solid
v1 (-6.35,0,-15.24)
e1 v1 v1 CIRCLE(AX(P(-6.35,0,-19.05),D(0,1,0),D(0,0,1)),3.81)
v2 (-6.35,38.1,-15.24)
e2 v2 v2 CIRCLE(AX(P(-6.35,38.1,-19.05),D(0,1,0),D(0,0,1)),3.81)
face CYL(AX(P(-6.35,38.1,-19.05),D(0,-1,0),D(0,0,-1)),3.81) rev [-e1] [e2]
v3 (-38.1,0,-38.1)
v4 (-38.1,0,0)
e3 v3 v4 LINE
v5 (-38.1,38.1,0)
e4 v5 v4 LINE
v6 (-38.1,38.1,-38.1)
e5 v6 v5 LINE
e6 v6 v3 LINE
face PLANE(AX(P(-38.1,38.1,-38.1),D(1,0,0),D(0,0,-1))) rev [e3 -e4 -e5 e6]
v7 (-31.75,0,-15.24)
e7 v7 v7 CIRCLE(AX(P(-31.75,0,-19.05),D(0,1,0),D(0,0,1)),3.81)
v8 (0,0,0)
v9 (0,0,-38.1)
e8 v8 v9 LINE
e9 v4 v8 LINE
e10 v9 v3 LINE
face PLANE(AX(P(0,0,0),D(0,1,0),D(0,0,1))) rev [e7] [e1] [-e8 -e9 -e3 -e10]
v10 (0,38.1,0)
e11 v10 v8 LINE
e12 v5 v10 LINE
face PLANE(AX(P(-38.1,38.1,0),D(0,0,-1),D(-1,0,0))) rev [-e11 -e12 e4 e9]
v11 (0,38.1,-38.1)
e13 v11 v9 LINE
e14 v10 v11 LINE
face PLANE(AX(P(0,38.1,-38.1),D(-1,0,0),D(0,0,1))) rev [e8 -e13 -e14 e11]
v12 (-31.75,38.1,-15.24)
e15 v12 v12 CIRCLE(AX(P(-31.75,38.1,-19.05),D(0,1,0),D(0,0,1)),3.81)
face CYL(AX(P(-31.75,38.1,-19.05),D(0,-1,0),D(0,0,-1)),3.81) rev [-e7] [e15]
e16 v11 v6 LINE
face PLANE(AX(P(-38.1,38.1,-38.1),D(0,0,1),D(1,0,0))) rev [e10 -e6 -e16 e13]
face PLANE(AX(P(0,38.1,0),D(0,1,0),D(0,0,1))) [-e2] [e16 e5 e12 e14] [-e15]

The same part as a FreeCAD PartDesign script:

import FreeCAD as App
import Part
import Sketcher
from FreeCAD import Vector
Q = App.Units.Quantity


def add_polygon(sketch, points):
    """Adds a closed chain of lines whose ends are joined by coincident constraints."""
    first, n = sketch.GeometryCount, len(points)
    for a, b in zip(points, points[1:] + points[:1]):
        sketch.addGeometry(Part.LineSegment(App.Vector(*a, 0), App.Vector(*b, 0)), False)
    for i in range(n):
        sketch.addConstraint(Sketcher.Constraint("Coincident", first + i, 2, first + (i + 1) % n, 1))

doc = App.newDocument("Part")
body = doc.addObject("PartDesign::Body", "Body")

sketch1 = body.newObject("Sketcher::SketchObject", "Sketch")
sketch1.AttachmentSupport = (doc.getObject("XZ_Plane"), [""])
sketch1.MapMode = "FlatFace"
add_polygon(sketch1, [(-38.1, -38.1), (-38.1, 0), (0, 0), (0, -38.1)])
sketch1.addGeometry(Part.Circle(Vector(-31.8, -19.1, 0), Vector(0, 0, 1), 3.8), False)
sketch1.addGeometry(Part.Circle(Vector(-6.3, -19.1, 0), Vector(0, 0, 1), 3.8), False)
sketch1.addConstraint([
    Sketcher.Constraint("Vertical", 0),
    Sketcher.Constraint("Horizontal", 1),
    Sketcher.Constraint("Vertical", 2),
    Sketcher.Constraint("Horizontal", 3),
    Sketcher.Constraint("Coincident", 1, 2, -1, 1),
    Sketcher.Constraint("Equal", 4, 5),
    Sketcher.Constraint("Horizontal", 4, 3, 5, 3),
    Sketcher.Constraint("Equal", 3, 0),
    Sketcher.Constraint("Diameter", 4, Q("0.3 in")),
    Sketcher.Constraint("DistanceX", 1, 1, 1, 2, Q("1.5 in")),
    Sketcher.Constraint("DistanceX", 4, 3, 5, 3, Q("1 in")),
    Sketcher.Constraint("DistanceX", 4, 3, -1, 1, Q("1.25 in")),
    Sketcher.Constraint("DistanceY", 4, 3, -1, 1, Q("0.75 in")),
])
pad1 = body.newObject("PartDesign::Pad", "Pad")
pad1.Profile = sketch1
pad1.Length = Q("1.5 in")
pad1.Reversed = True

doc.recompute()
